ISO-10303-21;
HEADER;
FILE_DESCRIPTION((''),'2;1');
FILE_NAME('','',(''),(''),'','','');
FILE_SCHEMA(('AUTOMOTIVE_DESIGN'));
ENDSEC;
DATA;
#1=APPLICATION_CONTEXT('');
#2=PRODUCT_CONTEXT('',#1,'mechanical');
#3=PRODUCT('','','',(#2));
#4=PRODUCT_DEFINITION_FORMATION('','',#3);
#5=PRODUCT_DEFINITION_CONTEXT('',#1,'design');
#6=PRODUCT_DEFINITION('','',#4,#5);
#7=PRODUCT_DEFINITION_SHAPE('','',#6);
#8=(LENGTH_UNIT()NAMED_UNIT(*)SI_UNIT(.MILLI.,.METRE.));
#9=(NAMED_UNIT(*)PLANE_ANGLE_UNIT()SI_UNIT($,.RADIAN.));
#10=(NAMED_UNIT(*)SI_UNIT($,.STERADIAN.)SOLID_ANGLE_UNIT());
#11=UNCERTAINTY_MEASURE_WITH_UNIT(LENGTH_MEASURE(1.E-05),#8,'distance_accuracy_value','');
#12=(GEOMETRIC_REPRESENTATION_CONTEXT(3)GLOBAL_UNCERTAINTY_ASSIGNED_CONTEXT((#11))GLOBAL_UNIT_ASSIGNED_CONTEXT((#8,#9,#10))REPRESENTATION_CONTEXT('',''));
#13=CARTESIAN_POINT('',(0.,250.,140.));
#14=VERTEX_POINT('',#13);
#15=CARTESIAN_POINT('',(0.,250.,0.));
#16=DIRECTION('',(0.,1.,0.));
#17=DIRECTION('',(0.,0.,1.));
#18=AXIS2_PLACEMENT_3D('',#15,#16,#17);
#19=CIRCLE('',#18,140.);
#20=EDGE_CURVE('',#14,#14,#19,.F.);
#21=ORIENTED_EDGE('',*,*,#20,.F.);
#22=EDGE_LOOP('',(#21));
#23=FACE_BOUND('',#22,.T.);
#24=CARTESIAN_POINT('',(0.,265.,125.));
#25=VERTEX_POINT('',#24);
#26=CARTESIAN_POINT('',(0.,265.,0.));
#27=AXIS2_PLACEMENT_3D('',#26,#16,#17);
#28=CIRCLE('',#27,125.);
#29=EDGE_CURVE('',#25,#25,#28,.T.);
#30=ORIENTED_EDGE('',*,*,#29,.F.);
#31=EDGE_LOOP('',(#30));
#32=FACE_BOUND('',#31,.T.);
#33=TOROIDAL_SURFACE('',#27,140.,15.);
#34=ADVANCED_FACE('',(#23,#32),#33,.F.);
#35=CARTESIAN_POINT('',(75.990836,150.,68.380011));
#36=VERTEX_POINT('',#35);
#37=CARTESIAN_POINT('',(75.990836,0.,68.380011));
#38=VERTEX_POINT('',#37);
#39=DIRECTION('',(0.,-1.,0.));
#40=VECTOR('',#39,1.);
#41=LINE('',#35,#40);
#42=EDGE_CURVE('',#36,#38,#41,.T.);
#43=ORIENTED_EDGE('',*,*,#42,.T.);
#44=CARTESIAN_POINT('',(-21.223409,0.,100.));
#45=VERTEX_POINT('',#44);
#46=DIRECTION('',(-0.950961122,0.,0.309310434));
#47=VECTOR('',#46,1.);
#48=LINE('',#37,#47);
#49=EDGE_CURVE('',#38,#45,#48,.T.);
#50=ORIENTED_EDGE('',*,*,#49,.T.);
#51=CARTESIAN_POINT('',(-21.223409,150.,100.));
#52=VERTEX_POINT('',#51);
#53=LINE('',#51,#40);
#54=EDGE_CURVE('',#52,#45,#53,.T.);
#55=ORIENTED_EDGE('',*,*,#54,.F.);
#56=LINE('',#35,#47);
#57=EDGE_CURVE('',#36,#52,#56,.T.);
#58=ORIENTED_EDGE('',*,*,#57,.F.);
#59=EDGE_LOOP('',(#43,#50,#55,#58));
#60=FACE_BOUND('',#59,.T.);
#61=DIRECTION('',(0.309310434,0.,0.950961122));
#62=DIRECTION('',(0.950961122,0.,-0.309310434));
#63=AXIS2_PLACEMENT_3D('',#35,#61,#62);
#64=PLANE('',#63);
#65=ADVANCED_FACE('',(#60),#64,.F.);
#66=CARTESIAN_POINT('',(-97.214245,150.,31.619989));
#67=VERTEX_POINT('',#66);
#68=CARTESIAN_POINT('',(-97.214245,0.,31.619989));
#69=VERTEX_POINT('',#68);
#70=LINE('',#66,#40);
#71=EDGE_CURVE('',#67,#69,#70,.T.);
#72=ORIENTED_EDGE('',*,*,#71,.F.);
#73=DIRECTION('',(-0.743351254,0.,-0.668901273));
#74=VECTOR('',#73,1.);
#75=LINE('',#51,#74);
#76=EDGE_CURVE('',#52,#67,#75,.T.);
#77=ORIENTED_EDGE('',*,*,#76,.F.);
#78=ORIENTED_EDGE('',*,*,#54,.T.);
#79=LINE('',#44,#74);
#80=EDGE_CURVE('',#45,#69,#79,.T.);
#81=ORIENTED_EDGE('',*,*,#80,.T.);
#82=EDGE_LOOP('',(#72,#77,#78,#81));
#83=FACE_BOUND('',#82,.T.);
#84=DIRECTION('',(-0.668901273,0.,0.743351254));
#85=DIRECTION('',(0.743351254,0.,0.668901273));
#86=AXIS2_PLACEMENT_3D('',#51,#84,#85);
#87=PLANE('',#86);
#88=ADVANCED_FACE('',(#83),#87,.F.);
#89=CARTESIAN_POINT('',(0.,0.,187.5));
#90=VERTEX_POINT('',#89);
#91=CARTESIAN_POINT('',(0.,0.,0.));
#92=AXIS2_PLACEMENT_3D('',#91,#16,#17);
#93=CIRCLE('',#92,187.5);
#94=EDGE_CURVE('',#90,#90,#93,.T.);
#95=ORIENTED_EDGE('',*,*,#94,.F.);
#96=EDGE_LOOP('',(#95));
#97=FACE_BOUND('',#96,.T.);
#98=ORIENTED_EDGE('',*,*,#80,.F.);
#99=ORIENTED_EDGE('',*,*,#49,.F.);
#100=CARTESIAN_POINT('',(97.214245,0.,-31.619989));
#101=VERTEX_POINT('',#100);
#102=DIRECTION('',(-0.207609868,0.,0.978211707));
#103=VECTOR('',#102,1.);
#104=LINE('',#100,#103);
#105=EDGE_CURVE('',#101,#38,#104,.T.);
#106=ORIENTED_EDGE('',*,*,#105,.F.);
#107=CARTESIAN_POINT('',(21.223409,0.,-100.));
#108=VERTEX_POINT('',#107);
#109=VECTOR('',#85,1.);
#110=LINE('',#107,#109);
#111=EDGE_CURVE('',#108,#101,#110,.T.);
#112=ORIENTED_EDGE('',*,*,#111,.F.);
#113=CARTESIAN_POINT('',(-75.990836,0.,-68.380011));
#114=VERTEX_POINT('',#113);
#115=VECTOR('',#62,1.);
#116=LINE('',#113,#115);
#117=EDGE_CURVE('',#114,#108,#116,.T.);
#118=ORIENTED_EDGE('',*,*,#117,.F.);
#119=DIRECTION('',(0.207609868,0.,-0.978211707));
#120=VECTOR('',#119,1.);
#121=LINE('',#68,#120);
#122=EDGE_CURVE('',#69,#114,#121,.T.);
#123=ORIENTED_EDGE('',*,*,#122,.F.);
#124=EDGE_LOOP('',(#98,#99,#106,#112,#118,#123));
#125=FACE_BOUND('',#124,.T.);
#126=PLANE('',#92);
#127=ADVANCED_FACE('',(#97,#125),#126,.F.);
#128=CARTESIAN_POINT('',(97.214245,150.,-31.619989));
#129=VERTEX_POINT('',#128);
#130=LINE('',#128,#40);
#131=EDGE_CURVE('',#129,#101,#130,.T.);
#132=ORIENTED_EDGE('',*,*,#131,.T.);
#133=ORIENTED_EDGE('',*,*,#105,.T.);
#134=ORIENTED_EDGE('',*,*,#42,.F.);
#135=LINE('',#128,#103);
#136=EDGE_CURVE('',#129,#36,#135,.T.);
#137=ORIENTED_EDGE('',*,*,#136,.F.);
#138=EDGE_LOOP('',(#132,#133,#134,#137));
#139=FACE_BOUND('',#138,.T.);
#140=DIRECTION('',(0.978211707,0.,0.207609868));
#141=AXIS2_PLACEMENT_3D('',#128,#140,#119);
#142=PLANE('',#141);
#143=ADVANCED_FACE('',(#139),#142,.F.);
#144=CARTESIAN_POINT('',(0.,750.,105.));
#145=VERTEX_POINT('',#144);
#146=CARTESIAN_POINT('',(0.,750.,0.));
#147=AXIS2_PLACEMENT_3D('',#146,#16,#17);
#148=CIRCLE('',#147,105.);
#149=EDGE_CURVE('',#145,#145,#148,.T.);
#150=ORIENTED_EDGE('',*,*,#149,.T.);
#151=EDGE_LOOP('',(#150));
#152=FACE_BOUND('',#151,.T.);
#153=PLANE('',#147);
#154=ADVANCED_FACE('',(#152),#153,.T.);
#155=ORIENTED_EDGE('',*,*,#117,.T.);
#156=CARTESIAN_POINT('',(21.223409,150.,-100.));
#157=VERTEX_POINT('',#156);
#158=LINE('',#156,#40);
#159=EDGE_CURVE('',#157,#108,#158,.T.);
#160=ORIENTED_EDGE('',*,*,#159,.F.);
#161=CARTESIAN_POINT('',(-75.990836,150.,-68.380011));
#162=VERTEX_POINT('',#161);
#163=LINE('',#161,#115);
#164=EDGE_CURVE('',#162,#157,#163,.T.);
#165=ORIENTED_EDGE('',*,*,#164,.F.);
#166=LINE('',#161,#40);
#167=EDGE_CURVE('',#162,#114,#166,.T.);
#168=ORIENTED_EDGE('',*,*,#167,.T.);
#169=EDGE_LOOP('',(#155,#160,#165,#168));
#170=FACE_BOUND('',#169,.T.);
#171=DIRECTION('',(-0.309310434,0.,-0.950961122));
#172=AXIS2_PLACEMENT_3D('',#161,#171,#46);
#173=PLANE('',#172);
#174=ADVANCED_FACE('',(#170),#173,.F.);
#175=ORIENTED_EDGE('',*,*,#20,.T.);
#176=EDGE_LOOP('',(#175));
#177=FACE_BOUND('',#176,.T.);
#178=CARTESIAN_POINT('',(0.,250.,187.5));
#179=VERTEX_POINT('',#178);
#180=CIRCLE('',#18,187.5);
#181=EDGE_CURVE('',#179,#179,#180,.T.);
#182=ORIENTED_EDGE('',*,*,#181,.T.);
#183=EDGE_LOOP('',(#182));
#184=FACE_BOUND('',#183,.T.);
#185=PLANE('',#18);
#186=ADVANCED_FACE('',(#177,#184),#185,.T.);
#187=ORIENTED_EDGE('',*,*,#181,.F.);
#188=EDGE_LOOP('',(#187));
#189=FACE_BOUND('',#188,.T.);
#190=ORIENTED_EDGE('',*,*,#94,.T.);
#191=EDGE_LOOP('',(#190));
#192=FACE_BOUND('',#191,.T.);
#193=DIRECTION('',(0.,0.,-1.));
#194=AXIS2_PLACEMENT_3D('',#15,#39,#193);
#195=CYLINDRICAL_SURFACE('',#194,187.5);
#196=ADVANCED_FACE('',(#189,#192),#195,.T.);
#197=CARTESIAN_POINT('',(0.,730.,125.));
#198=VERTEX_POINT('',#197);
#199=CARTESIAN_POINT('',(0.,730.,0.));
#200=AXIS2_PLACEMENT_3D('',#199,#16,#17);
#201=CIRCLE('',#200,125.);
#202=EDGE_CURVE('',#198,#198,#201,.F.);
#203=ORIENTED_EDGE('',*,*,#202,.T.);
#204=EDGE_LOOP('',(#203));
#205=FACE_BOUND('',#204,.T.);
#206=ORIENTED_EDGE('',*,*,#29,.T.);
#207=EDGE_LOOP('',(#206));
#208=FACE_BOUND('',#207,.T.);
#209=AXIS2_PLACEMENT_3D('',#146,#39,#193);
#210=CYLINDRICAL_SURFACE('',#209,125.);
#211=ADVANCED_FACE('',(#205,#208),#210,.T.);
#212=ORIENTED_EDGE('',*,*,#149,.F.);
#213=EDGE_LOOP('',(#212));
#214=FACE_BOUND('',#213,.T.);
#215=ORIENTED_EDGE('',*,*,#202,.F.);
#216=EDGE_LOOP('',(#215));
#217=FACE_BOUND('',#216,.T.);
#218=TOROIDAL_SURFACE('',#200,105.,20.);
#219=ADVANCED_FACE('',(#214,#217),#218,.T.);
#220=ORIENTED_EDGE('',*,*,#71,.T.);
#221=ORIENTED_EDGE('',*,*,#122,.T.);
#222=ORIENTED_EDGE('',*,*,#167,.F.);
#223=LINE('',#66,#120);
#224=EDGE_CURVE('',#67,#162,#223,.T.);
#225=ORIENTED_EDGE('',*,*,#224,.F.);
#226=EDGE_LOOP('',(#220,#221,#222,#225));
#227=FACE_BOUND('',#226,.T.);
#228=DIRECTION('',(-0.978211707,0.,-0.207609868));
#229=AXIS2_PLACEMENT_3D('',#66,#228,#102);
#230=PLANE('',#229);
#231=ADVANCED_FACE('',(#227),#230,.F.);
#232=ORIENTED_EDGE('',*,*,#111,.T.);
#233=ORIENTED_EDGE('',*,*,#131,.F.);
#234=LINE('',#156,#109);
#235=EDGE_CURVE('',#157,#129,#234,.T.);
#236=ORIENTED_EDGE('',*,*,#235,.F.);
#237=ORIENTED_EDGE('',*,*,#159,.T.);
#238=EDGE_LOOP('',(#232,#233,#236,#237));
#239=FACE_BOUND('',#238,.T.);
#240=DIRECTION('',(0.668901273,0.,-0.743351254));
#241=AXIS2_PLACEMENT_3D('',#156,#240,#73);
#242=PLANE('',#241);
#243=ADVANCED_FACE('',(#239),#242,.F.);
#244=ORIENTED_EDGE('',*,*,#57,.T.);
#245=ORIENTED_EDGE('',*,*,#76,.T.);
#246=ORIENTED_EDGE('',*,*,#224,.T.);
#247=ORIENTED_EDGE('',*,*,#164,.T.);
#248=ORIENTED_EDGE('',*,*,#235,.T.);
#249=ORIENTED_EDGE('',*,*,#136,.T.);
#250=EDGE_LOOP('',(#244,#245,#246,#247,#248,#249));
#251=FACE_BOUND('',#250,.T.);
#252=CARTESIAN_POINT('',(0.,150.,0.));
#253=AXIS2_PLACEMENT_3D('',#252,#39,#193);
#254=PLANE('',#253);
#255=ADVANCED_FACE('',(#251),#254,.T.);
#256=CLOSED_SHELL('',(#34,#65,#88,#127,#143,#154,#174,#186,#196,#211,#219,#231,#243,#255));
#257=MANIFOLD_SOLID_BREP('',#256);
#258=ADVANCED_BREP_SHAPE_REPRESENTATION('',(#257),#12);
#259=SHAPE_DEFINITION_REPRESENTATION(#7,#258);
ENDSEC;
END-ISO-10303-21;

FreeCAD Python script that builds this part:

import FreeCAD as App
import Part
import Sketcher
from FreeCAD import Vector
Q = App.Units.Quantity


def edges_at(feature, points):
    """Names of the edges that pass closest to the given points."""
    edges = feature.Shape.Edges
    near = lambda p: min(range(len(edges)), key=lambda i: edges[i].distToShape(Part.Vertex(*p))[0])
    return sorted({f"Edge{near(p) + 1}" for p in points})

doc = App.newDocument("Part")
body = doc.addObject("PartDesign::Body", "Body")

# Sketch on XZ plane
sketch1 = body.newObject("Sketcher::SketchObject", "Sketch")
sketch1.AttachmentSupport = (doc.getObject("XZ_Plane"), [""])
sketch1.MapMode = "FlatFace"
sketch1.addGeometry(Part.Circle(Vector(0, 0, 0), Vector(0, 0, 1), 187.5), False)
sketch1.addConstraint(Sketcher.Constraint("Coincident", 0, 3, -1, 1))
sketch1.addConstraint(Sketcher.Constraint("Diameter", 0, Q("375 mm")))
pad1 = body.newObject("PartDesign::Pad", "Pad")
pad1.Profile = sketch1
pad1.Length = 250
pad1.Reversed = True

# Sketch on XZ plane
sketch2 = body.newObject("Sketcher::SketchObject", "Sketch001")
sketch2.AttachmentSupport = (doc.getObject("XZ_Plane"), [""])
sketch2.MapMode = "FlatFace"
sketch2.AttachmentOffset = App.Placement(Vector(0, 0, -250), App.Rotation())
sketch2.addGeometry(Part.Circle(Vector(0, 0, 0), Vector(0, 0, 1), 125), False)
sketch2.addConstraint(Sketcher.Constraint("Coincident", 0, 3, -1, 1))
sketch2.addConstraint(Sketcher.Constraint("Diameter", 0, Q("250 mm")))
pad2 = body.newObject("PartDesign::Pad", "Pad001")
pad2.Profile = sketch2
pad2.Length = 500
pad2.Reversed = True
doc.recompute()

fillet = body.newObject("PartDesign::Fillet", "Fillet")
fillet.Base = (pad2, edges_at(pad2, [(0, 250, -125)]))
fillet.Radius = 15
doc.recompute()

fillet2 = body.newObject("PartDesign::Fillet", "Fillet001")
fillet2.Base = (fillet, edges_at(fillet, [(0, 750, -125)]))
fillet2.Radius = 20

# Sketch on XZ plane
sketch3 = body.newObject("Sketcher::SketchObject", "Sketch002")
sketch3.AttachmentSupport = (doc.getObject("XZ_Plane"), [""])
sketch3.MapMode = "FlatFace"
sketch3.addGeometry(Part.LineSegment(Vector(-97.214245, 31.619989, 0), Vector(-75.990836, -68.380011, 0)), False)
sketch3.addGeometry(Part.LineSegment(Vector(-75.990836, -68.380011, 0), Vector(21.223409, -100, 0)), False)
sketch3.addGeometry(Part.LineSegment(Vector(21.223409, -100, 0), Vector(97.214245, -31.619989, 0)), False)
sketch3.addGeometry(Part.LineSegment(Vector(97.214245, -31.619989, 0), Vector(75.990836, 68.380011, 0)), False)
sketch3.addGeometry(Part.LineSegment(Vector(75.990836, 68.380011, 0), Vector(-21.223409, 100, 0)), False)
sketch3.addGeometry(Part.LineSegment(Vector(-21.223409, 100, 0), Vector(-97.214245, 31.619989, 0)), False)
sketch3.addConstraint(Sketcher.Constraint("Coincident", 0, 2, 1, 1))
sketch3.addConstraint(Sketcher.Constraint("Coincident", 1, 2, 2, 1))
sketch3.addConstraint(Sketcher.Constraint("Coincident", 2, 2, 3, 1))
sketch3.addConstraint(Sketcher.Constraint("Coincident", 3, 2, 4, 1))
sketch3.addConstraint(Sketcher.Constraint("Coincident", 4, 2, 5, 1))
sketch3.addConstraint(Sketcher.Constraint("Coincident", 5, 2, 0, 1))
sketch3.addConstraint(Sketcher.Constraint("Symmetric", 0, 2, 3, 2, -1, 1))
sketch3.addConstraint(Sketcher.Constraint("Symmetric", 1, 2, 4, 2, -1, 1))
sketch3.addConstraint(Sketcher.Constraint("Symmetric", 2, 2, 5, 2, -1, 1))
sketch3.addConstraint(Sketcher.Constraint("Equal", 0, 1))
sketch3.addConstraint(Sketcher.Constraint("Equal", 1, 2))
sketch3.addConstraint(Sketcher.Constraint("DistanceY", 1, 2, -1, 1, Q("100 mm")))
sketch3.addConstraint(Sketcher.Constraint("DistanceY", 2, 2, 3, 2, Q("100 mm")))
sketch3.addConstraint(Sketcher.Constraint("Distance", 0, Q("102.22736 mm")))
sketch3.addConstraint(Sketcher.Constraint("DistanceY", 0, 2, -1, 1, Q("68.380011 mm")))
pocket1 = body.newObject("PartDesign::Pocket", "Pocket")
pocket1.Profile = sketch3
pocket1.Length = 150

doc.recompute()
